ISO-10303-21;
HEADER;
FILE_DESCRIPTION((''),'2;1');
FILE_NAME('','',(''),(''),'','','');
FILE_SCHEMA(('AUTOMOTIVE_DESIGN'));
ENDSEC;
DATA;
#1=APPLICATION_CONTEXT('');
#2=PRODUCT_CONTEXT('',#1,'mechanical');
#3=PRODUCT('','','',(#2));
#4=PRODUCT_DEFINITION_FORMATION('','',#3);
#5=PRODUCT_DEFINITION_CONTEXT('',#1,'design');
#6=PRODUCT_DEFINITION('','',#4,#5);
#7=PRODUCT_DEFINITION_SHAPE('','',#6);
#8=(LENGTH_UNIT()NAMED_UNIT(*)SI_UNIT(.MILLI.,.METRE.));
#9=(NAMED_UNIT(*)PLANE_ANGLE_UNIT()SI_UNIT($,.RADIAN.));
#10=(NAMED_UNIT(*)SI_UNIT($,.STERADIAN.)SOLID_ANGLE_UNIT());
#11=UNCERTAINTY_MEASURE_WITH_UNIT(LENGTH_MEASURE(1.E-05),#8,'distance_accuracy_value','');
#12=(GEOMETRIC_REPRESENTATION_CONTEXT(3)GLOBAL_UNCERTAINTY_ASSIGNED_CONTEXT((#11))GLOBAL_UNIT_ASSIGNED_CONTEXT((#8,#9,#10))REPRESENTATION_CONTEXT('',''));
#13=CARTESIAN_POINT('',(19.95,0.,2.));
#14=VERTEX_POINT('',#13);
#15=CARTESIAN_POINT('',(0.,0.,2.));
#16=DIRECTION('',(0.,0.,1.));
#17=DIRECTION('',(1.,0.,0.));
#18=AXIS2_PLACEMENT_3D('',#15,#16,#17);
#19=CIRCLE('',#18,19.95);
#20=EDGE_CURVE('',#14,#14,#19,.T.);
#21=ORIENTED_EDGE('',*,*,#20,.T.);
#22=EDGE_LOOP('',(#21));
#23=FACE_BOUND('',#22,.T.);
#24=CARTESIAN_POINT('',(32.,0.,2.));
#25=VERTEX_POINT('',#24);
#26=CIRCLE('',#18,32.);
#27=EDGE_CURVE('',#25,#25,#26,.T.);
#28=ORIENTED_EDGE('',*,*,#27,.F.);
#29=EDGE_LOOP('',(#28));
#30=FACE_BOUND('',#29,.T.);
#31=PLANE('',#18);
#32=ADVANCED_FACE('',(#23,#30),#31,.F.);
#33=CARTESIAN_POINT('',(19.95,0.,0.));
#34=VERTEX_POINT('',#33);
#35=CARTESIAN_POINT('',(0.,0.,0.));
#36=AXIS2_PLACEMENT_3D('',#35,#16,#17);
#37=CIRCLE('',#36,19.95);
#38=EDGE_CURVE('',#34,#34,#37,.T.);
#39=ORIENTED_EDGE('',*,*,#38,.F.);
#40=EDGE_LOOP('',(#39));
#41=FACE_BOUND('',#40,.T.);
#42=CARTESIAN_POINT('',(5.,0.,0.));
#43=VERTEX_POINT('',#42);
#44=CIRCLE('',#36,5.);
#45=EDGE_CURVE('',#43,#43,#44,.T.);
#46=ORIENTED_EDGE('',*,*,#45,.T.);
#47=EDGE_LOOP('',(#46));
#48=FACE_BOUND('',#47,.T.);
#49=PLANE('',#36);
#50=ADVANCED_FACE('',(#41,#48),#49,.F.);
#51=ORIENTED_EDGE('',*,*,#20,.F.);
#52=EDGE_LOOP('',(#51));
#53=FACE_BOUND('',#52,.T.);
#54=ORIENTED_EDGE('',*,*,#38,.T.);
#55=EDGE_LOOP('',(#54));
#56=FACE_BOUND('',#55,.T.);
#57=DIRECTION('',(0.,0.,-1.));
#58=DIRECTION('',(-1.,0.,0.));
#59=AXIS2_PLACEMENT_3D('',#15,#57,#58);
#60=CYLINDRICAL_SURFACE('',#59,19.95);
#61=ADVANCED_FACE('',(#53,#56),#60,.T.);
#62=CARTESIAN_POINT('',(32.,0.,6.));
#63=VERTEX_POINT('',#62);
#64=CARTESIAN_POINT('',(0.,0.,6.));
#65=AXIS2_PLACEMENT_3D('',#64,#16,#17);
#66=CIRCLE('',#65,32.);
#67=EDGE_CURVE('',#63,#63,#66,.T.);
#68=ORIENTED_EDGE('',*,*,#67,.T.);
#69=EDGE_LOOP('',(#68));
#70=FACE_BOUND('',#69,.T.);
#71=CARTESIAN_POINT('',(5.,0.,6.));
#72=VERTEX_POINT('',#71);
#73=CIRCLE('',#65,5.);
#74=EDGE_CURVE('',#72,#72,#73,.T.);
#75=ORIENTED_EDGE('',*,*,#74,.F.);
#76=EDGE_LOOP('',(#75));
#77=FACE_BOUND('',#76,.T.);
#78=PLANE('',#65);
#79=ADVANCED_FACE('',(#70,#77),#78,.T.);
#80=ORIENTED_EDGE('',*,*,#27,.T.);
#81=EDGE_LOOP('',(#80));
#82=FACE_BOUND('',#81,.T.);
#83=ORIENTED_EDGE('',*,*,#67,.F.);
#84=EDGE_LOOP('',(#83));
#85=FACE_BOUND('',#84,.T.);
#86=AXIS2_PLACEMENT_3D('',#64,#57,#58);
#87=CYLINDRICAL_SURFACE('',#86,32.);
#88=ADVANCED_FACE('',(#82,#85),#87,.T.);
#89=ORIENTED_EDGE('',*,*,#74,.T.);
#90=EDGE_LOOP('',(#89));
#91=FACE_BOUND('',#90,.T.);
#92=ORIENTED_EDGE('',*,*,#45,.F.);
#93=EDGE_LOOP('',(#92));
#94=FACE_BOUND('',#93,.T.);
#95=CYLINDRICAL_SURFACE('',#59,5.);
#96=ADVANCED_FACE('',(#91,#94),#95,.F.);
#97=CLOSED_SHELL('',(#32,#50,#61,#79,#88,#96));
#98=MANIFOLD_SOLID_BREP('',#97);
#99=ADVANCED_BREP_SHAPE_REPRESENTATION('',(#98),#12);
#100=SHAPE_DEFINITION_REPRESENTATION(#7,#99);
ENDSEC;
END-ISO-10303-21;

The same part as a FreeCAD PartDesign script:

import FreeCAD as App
import Part
import Sketcher
from FreeCAD import Vector

doc = App.newDocument("Part")
body = doc.addObject("PartDesign::Body", "Body")

# Sketch on XY plane
sketch1 = body.newObject("Sketcher::SketchObject", "Sketch")
sketch1.AttachmentSupport = (doc.getObject("XY_Plane"), [""])
sketch1.MapMode = "FlatFace"
sketch1.addGeometry([
    Part.Circle(Vector(0, 0, 0), Vector(0, 0, 1), 20),
    Part.Circle(Vector(0, 0, 0), Vector(0, 0, 1), 5),
], False)
sketch1.addConstraint([
    Sketcher.Constraint("Coincident", 0, 3, -1, 1),
    Sketcher.Constraint("Coincident", 1, 3, -1, 1),
    Sketcher.Constraint("Diameter", 1, 10.0),
    Sketcher.Constraint("Diameter", 0, 39.9),
])
pad1 = body.newObject("PartDesign::Pad", "Pad")
pad1.Profile = sketch1
pad1.Length = 2

# Sketch on XY plane
sketch2 = body.newObject("Sketcher::SketchObject", "Sketch001")
sketch2.AttachmentSupport = (doc.getObject("XY_Plane"), [""])
sketch2.MapMode = "FlatFace"
sketch2.AttachmentOffset = App.Placement(Vector(0, 0, 2), App.Rotation())
sketch2.addGeometry([
    Part.Circle(Vector(0, 0, 0), Vector(0, 0, 1), 32),
    Part.Circle(Vector(0, 0, 0), Vector(0, 0, 1), 5),
], False)
sketch2.addConstraint([
    Sketcher.Constraint("Coincident", 0, 3, -1, 1),
    Sketcher.Constraint("Coincident", 1, 3, -1, 1),
    Sketcher.Constraint("Diameter", 0, 64.0),
    Sketcher.Constraint("Diameter", 1, 10.0),
])
pad2 = body.newObject("PartDesign::Pad", "Pad001")
pad2.Profile = sketch2
pad2.Length = 4

doc.recompute()
